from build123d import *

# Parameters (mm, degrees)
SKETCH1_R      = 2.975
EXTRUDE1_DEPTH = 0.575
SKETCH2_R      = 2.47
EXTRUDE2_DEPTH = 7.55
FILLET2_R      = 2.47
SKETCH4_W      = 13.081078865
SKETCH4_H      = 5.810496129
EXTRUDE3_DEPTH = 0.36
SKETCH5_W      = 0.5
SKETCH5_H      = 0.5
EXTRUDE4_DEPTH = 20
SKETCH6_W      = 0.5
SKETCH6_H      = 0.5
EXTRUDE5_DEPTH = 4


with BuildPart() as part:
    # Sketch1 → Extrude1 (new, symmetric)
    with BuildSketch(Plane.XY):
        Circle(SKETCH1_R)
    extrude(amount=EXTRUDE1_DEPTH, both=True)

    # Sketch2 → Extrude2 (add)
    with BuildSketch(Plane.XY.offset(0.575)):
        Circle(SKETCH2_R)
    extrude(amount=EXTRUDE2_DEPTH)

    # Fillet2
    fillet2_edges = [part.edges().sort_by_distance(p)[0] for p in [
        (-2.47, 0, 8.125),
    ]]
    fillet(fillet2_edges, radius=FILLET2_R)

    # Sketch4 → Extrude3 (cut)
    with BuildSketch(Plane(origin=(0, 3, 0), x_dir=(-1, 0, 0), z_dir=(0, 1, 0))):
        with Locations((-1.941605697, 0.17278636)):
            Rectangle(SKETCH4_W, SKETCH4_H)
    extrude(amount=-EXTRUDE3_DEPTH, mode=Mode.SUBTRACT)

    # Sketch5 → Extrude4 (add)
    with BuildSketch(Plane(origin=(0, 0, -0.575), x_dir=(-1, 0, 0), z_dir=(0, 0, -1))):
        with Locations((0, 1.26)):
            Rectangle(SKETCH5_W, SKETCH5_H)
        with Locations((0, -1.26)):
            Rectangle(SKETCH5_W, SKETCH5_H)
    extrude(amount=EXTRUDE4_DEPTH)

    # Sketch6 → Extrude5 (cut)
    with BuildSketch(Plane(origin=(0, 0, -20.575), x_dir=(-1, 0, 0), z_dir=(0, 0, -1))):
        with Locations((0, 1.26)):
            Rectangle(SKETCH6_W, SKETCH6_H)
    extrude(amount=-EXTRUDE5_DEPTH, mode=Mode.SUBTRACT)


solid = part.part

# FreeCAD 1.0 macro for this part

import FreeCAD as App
import Part
import Sketcher
Q = App.Units.Quantity


def edges_at(feature, points):
    """Names of the edges that pass closest to the given points."""
    edges = feature.Shape.Edges
    near = lambda p: min(range(len(edges)), key=lambda i: edges[i].distToShape(Part.Vertex(*p))[0])
    return sorted({f"Edge{near(p) + 1}" for p in points})

doc = App.newDocument("Part")
body = doc.addObject("PartDesign::Body", "Body")

# Sketch on XY plane
sketch1 = body.newObject("Sketcher::SketchObject", "Sketch")
sketch1.AttachmentSupport = (doc.getObject("XY_Plane"), [""])
sketch1.MapMode = "FlatFace"
sketch1.addGeometry(Part.Circle(App.Vector(0, 0, 0), App.Vector(0, 0, 1), 3), False)
sketch1.addConstraint([
    Sketcher.Constraint("Coincident", 0, 3, -1, 1),
    Sketcher.Constraint("Diameter", 0, Q("5.95 mm")),
])
pad1 = body.newObject("PartDesign::Pad", "Pad")
pad1.Profile = sketch1
pad1.Length = 1.15
pad1.Midplane = True

# Sketch on XY plane
sketch2 = body.newObject("Sketcher::SketchObject", "Sketch001")
sketch2.AttachmentSupport = (doc.getObject("XY_Plane"), [""])
sketch2.MapMode = "FlatFace"
sketch2.AttachmentOffset = App.Placement(App.Vector(0, 0, 0.575), App.Rotation())
sketch2.addGeometry(Part.Circle(App.Vector(0, 0, 0), App.Vector(0, 0, 1), 2.5), False)
sketch2.addConstraint([
    Sketcher.Constraint("Coincident", 0, 3, -1, 1),
    Sketcher.Constraint("Diameter", 0, Q("4.94 mm")),
])
pad2 = body.newObject("PartDesign::Pad", "Pad001")
pad2.Profile = sketch2
pad2.Length = 7.55
doc.recompute()

fillet = body.newObject("PartDesign::Fillet", "Fillet")
fillet.Base = (pad2, edges_at(pad2, [(-2.47, 0, 8.125)]))
fillet.Radius = 2.47

# Sketch on XZ plane
sketch3 = body.newObject("Sketcher::SketchObject", "Sketch002")
sketch3.AttachmentSupport = (doc.getObject("XZ_Plane"), [""])
sketch3.MapMode = "FlatFace"
sketch3.AttachmentOffset = App.Placement(App.Vector(0, 0, -3), App.Rotation())
sketch3.addGeometry([
    Part.LineSegment(App.Vector(8, 3, 0), App.Vector(8, -3, 0)),
    Part.LineSegment(App.Vector(8, -3, 0), App.Vector(-5, -3, 0)),
    Part.LineSegment(App.Vector(-5, -3, 0), App.Vector(-5, 3, 0)),
    Part.LineSegment(App.Vector(-5, 3, 0), App.Vector(8, 3, 0)),
], False)
sketch3.addConstraint([
    Sketcher.Constraint("Coincident", 0, 2, 1, 1),
    Sketcher.Constraint("Coincident", 1, 2, 2, 1),
    Sketcher.Constraint("Coincident", 2, 2, 3, 1),
    Sketcher.Constraint("Coincident", 3, 2, 0, 1),
    Sketcher.Constraint("Vertical", 0),
    Sketcher.Constraint("Horizontal", 1),
    Sketcher.Constraint("Vertical", 2),
    Sketcher.Constraint("Horizontal", 3),
    Sketcher.Constraint("DistanceX", 1, 2, 1, 1, Q("13.081079 mm")),
    Sketcher.Constraint("DistanceY", 0, 2, 0, 1, Q("5.810496 mm")),
    Sketcher.Constraint("DistanceY", 0, 2, -1, 1, Q("2.732462 mm")),
    Sketcher.Constraint("DistanceX", -1, 1, 0, 2, Q("8.482145 mm")),
])
pocket1 = body.newObject("PartDesign::Pocket", "Pocket")
pocket1.Profile = sketch3
pocket1.Length = 0.36
pocket1.Reversed = True

# Sketch on XY plane
sketch4 = body.newObject("Sketcher::SketchObject", "Sketch003")
sketch4.AttachmentSupport = (doc.getObject("XY_Plane"), [""])
sketch4.MapMode = "FlatFace"
sketch4.AttachmentOffset = App.Placement(App.Vector(0, 0, -0.575), App.Rotation())
sketch4.addGeometry([
    Part.LineSegment(App.Vector(0.2, 1.5, 0), App.Vector(0.2, 1, 0)),  # 0
    Part.LineSegment(App.Vector(0.2, 1, 0), App.Vector(-0.2, 1, 0)),  # 1
    Part.LineSegment(App.Vector(-0.2, 1, 0), App.Vector(-0.2, 1.5, 0)),  # 2
    Part.LineSegment(App.Vector(-0.2, 1.5, 0), App.Vector(0.2, 1.5, 0)),  # 3
    Part.LineSegment(App.Vector(0.2, -1, 0), App.Vector(0.2, -1.5, 0)),  # 4
    Part.LineSegment(App.Vector(0.2, -1.5, 0), App.Vector(-0.2, -1.5, 0)),  # 5
    Part.LineSegment(App.Vector(-0.2, -1.5, 0), App.Vector(-0.2, -1, 0)),  # 6
    Part.LineSegment(App.Vector(-0.2, -1, 0), App.Vector(0.2, -1, 0)),  # 7
], False)
sketch4.addConstraint([
    Sketcher.Constraint("Coincident", 0, 2, 1, 1),
    Sketcher.Constraint("Coincident", 1, 2, 2, 1),
    Sketcher.Constraint("Coincident", 2, 2, 3, 1),
    Sketcher.Constraint("Coincident", 3, 2, 0, 1),
    Sketcher.Constraint("Coincident", 4, 2, 5, 1),
    Sketcher.Constraint("Coincident", 5, 2, 6, 1),
    Sketcher.Constraint("Coincident", 6, 2, 7, 1),
    Sketcher.Constraint("Coincident", 7, 2, 4, 1),
    Sketcher.Constraint("Vertical", 0),
    Sketcher.Constraint("Horizontal", 1),
    Sketcher.Constraint("Vertical", 2),
    Sketcher.Constraint("Horizontal", 3),
    Sketcher.Constraint("Vertical", 4),
    Sketcher.Constraint("Horizontal", 5),
    Sketcher.Constraint("Vertical", 6),
    Sketcher.Constraint("Horizontal", 7),
    Sketcher.Constraint("Symmetric", 2, 2, 4, 2, -1, 1),
    Sketcher.Constraint("Symmetric", 0, 2, 6, 2, -1, 1),
    Sketcher.Constraint("Vertical", 3, 2, 4, 2),
    Sketcher.Constraint("Equal", 7, 0),
    Sketcher.Constraint("DistanceX", 1, 2, 1, 1, Q("0.5 mm")),
    Sketcher.Constraint("DistanceY", -1, 1, 0, 2, Q("1.01 mm")),
])
pad3 = body.newObject("PartDesign::Pad", "Pad002")
pad3.Profile = sketch4
pad3.Length = 20
pad3.Reversed = True

# Sketch on XY plane
sketch5 = body.newObject("Sketcher::SketchObject", "Sketch004")
sketch5.AttachmentSupport = (doc.getObject("XY_Plane"), [""])
sketch5.MapMode = "FlatFace"
sketch5.AttachmentOffset = App.Placement(App.Vector(0, 0, -20.575), App.Rotation())
sketch5.addGeometry([
    Part.LineSegment(App.Vector(0.2, 1.5, 0), App.Vector(0.2, 1, 0)),
    Part.LineSegment(App.Vector(0.2, 1, 0), App.Vector(-0.2, 1, 0)),
    Part.LineSegment(App.Vector(-0.2, 1, 0), App.Vector(-0.2, 1.5, 0)),
    Part.LineSegment(App.Vector(-0.2, 1.5, 0), App.Vector(0.2, 1.5, 0)),
], False)
sketch5.addConstraint([
    Sketcher.Constraint("Coincident", 0, 2, 1, 1),
    Sketcher.Constraint("Coincident", 1, 2, 2, 1),
    Sketcher.Constraint("Coincident", 2, 2, 3, 1),
    Sketcher.Constraint("Coincident", 3, 2, 0, 1),
    Sketcher.Constraint("Vertical", 0),
    Sketcher.Constraint("Horizontal", 1),
    Sketcher.Constraint("Vertical", 2),
    Sketcher.Constraint("Horizontal", 3),
    Sketcher.Constraint("Equal", 3, 0),
    Sketcher.Constraint("DistanceX", 1, 2, 1, 1, Q("0.5 mm")),
    Sketcher.Constraint("DistanceX", -1, 1, 0, 2, Q("0.25 mm")),
    Sketcher.Constraint("DistanceY", -1, 1, 0, 2, Q("1.01 mm")),
])
pocket2 = body.newObject("PartDesign::Pocket", "Pocket001")
pocket2.Profile = sketch5
pocket2.Length = 4
pocket2.Reversed = True

doc.recompute()
